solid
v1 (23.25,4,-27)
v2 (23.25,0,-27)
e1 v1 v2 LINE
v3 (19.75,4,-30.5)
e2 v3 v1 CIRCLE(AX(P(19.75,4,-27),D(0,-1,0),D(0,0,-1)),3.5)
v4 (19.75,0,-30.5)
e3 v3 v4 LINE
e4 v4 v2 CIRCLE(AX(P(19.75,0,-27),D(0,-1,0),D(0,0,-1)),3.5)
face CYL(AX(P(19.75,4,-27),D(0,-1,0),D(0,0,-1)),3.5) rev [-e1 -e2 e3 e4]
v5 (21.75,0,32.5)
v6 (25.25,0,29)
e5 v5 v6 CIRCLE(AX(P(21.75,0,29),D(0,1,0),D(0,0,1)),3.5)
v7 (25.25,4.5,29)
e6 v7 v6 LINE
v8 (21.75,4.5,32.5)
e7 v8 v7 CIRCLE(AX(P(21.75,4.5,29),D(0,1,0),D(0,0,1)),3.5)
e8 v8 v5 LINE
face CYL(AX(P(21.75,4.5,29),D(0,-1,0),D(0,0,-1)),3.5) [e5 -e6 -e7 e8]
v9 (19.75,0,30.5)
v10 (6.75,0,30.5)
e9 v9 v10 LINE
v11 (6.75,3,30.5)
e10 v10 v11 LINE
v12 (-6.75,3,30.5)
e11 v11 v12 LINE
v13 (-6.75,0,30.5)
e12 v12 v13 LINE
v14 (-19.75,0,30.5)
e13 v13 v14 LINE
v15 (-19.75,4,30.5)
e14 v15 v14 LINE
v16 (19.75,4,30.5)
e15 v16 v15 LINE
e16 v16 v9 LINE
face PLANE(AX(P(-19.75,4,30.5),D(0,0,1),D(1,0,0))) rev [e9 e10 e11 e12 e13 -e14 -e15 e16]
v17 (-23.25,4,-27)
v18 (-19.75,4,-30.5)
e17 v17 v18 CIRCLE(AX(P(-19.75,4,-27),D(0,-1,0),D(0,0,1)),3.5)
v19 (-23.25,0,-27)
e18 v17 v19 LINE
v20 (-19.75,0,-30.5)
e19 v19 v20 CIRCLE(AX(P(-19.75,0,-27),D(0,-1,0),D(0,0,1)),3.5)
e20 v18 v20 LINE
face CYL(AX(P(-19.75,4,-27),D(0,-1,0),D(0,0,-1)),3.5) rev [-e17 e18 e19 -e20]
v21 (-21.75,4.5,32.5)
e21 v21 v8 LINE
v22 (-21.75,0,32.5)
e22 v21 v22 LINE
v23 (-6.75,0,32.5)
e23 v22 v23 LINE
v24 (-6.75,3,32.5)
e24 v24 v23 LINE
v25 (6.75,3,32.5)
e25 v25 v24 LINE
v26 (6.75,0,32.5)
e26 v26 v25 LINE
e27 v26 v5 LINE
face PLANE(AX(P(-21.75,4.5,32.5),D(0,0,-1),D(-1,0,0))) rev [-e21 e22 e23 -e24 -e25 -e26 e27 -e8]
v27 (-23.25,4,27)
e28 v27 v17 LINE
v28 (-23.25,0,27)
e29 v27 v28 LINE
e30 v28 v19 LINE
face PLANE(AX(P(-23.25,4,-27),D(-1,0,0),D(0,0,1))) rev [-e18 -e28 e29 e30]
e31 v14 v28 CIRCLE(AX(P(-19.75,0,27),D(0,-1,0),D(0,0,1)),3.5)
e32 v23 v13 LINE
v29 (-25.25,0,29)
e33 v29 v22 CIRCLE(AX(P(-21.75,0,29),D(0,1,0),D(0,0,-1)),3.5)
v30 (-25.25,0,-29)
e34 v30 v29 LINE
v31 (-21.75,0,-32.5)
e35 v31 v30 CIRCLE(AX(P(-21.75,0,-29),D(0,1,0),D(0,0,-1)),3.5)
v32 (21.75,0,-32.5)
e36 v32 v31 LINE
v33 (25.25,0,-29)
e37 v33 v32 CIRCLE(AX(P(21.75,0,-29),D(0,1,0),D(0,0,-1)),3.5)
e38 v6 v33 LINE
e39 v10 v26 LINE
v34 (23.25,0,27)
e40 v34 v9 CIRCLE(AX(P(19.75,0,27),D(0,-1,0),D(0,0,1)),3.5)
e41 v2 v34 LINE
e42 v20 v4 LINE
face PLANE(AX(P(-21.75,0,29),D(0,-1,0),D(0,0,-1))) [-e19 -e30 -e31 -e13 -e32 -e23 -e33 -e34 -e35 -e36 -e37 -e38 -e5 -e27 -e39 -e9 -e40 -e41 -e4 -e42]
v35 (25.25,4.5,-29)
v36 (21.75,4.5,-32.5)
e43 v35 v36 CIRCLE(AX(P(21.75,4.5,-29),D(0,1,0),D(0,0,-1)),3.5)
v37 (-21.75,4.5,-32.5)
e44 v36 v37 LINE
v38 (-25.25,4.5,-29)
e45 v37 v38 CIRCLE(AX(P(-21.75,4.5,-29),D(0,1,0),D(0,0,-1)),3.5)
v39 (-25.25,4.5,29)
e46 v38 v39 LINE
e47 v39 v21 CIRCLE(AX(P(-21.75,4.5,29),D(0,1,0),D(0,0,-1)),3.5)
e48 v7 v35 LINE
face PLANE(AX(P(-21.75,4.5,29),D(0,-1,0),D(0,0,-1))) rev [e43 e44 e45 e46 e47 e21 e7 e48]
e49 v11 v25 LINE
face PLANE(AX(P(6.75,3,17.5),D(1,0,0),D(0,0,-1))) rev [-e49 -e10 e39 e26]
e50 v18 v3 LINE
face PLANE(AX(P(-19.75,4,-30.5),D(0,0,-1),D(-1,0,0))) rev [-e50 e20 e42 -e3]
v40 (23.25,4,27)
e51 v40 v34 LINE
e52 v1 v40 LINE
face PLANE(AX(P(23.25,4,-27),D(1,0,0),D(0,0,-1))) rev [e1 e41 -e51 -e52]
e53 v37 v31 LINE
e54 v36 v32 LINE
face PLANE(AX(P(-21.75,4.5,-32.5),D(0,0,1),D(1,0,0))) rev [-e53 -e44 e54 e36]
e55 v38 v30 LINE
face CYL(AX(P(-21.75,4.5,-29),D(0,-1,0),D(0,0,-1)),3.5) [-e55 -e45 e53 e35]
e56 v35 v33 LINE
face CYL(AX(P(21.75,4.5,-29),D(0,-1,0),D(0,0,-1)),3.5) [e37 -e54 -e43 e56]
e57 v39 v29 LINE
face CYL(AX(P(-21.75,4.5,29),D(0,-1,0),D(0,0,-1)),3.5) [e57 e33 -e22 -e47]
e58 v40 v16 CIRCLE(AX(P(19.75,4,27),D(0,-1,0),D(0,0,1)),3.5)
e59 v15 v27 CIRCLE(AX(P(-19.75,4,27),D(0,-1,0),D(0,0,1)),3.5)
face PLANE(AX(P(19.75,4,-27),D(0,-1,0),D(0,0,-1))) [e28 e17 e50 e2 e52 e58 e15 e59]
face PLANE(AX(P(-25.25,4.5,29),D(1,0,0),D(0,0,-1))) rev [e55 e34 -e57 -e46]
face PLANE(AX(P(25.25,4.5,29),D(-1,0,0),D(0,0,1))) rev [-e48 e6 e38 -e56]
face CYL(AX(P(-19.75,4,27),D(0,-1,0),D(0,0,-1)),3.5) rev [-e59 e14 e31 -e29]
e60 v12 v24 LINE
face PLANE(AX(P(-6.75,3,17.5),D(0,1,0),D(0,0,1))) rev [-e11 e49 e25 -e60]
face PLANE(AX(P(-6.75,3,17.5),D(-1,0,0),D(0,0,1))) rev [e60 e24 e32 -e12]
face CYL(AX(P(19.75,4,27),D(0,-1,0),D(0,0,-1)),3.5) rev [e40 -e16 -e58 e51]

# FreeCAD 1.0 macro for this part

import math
import FreeCAD as App
import Part
import Sketcher

V = App.Vector


def add_polygon(sketch, points):
    """Adds a closed chain of lines whose ends are joined by coincident constraints."""
    first, n = sketch.GeometryCount, len(points)
    for a, b in zip(points, points[1:] + points[:1]):
        sketch.addGeometry(Part.LineSegment(App.Vector(*a, 0), App.Vector(*b, 0)), False)
    for i in range(n):
        sketch.addConstraint(Sketcher.Constraint("Coincident", first + i, 2, first + (i + 1) % n, 1))

doc = App.newDocument("Part")
body = doc.addObject("PartDesign::Body", "Body")

# Sketch on XZ plane
sketch1 = body.newObject("Sketcher::SketchObject", "Sketch")
sketch1.AttachmentSupport = (doc.getObject("XZ_Plane"), [""])
sketch1.MapMode = "FlatFace"
sketch1.addGeometry([
    Part.LineSegment(V(-21.75, 32.5, 0), V(21.75, 32.5, 0)),  # 0
    Part.ArcOfCircle(Part.Circle(V(21.75, 29, 0), V(0, 0, 1), 3.5), math.radians(0), math.radians(90)),  # 1
    Part.LineSegment(V(25.25, 29, 0), V(25.25, -29, 0)),  # 2
    Part.ArcOfCircle(Part.Circle(V(21.75, -29, 0), V(0, 0, 1), 3.5), math.radians(-90), math.radians(0)),  # 3
    Part.LineSegment(V(21.75, -32.5, 0), V(-21.75, -32.5, 0)),  # 4
    Part.ArcOfCircle(Part.Circle(V(-21.75, -29, 0), V(0, 0, 1), 3.5), math.radians(-180), math.radians(-90)),  # 5
    Part.LineSegment(V(-25.25, -29, 0), V(-25.25, 29, 0)),  # 6
    Part.ArcOfCircle(Part.Circle(V(-21.75, 29, 0), V(0, 0, 1), 3.5), math.radians(90), math.radians(180)),  # 7
], False)
sketch1.addConstraint([
    Sketcher.Constraint("Tangent", 0, 2, 1, 2),
    Sketcher.Constraint("Tangent", 1, 1, 2, 1),
    Sketcher.Constraint("Tangent", 2, 2, 3, 2),
    Sketcher.Constraint("Tangent", 3, 1, 4, 1),
    Sketcher.Constraint("Tangent", 4, 2, 5, 2),
    Sketcher.Constraint("Tangent", 5, 1, 6, 1),
    Sketcher.Constraint("Tangent", 6, 2, 7, 2),
    Sketcher.Constraint("Tangent", 7, 1, 0, 1),
    Sketcher.Constraint("Horizontal", 0),
    Sketcher.Constraint("Vertical", 2),
    Sketcher.Constraint("Horizontal", 4),
    Sketcher.Constraint("Vertical", 6),
    Sketcher.Constraint("Equal", 1, 3),
    Sketcher.Constraint("Equal", 3, 5),
    Sketcher.Constraint("Equal", 5, 7),
    Sketcher.Constraint("Symmetric", 1, 3, 5, 3, -1, 1),
    Sketcher.Constraint("Radius", 1, 3.5),
    Sketcher.Constraint("DistanceY", 2, 2, 2, 1, 58.0),
    Sketcher.Constraint("DistanceX", 0, 1, 0, 2, 43.5),
])
pad1 = body.newObject("PartDesign::Pad", "Pad")
pad1.Profile = sketch1
pad1.Length = 4.5
pad1.Reversed = True

# Sketch on XZ plane
sketch2 = body.newObject("Sketcher::SketchObject", "Sketch001")
sketch2.AttachmentSupport = (doc.getObject("XZ_Plane"), [""])
sketch2.MapMode = "FlatFace"
sketch2.addGeometry([
    Part.LineSegment(V(-19.75, -30.5, 0), V(19.75, -30.5, 0)),  # 0
    Part.ArcOfCircle(Part.Circle(V(19.75, -27, 0), V(0, 0, 1), 3.5), math.radians(-90), math.radians(0)),  # 1
    Part.LineSegment(V(23.25, -27, 0), V(23.25, 27, 0)),  # 2
    Part.ArcOfCircle(Part.Circle(V(19.75, 27, 0), V(0, 0, 1), 3.5), math.radians(0), math.radians(90)),  # 3
    Part.LineSegment(V(19.75, 30.5, 0), V(-19.75, 30.5, 0)),  # 4
    Part.ArcOfCircle(Part.Circle(V(-19.75, 27, 0), V(0, 0, 1), 3.5), math.radians(90), math.radians(180)),  # 5
    Part.LineSegment(V(-23.25, 27, 0), V(-23.25, -27, 0)),  # 6
    Part.ArcOfCircle(Part.Circle(V(-19.75, -27, 0), V(0, 0, 1), 3.5), math.radians(-180), math.radians(-90)),  # 7
], False)
sketch2.addConstraint([
    Sketcher.Constraint("Tangent", 0, 2, 1, 1),
    Sketcher.Constraint("Tangent", 1, 2, 2, 1),
    Sketcher.Constraint("Tangent", 2, 2, 3, 1),
    Sketcher.Constraint("Tangent", 3, 2, 4, 1),
    Sketcher.Constraint("Tangent", 4, 2, 5, 1),
    Sketcher.Constraint("Tangent", 5, 2, 6, 1),
    Sketcher.Constraint("Tangent", 6, 2, 7, 1),
    Sketcher.Constraint("Tangent", 7, 2, 0, 1),
    Sketcher.Constraint("Horizontal", 0),
    Sketcher.Constraint("Vertical", 2),
    Sketcher.Constraint("Horizontal", 4),
    Sketcher.Constraint("Vertical", 6),
    Sketcher.Constraint("Equal", 1, 3),
    Sketcher.Constraint("Equal", 3, 5),
    Sketcher.Constraint("Equal", 5, 7),
    Sketcher.Constraint("Symmetric", 1, 3, 5, 3, -1, 1),
    Sketcher.Constraint("Radius", 1, 3.5),
    Sketcher.Constraint("DistanceY", 2, 1, 2, 2, 54.0),
    Sketcher.Constraint("DistanceX", 0, 1, 0, 2, 39.5),
])
pocket1 = body.newObject("PartDesign::Pocket", "Pocket")
pocket1.Profile = sketch2
pocket1.Length = 4

# Sketch on XY plane
sketch3 = body.newObject("Sketcher::SketchObject", "Sketch002")
sketch3.AttachmentSupport = (doc.getObject("XY_Plane"), [""])
sketch3.MapMode = "FlatFace"
sketch3.AttachmentOffset = App.Placement(V(0, 0, 32.5), App.Rotation())
add_polygon(sketch3, [(-6.75, 3), (-6.75, -3), (6.75, -3), (6.75, 3)])  # lines 0-3
sketch3.addConstraint([
    Sketcher.Constraint("Vertical", 0),
    Sketcher.Constraint("Horizontal", 1),
    Sketcher.Constraint("Vertical", 2),
    Sketcher.Constraint("Horizontal", 3),
    Sketcher.Constraint("Symmetric", 0, 2, 2, 2, -1, 1),
    Sketcher.Constraint("DistanceY", 0, 2, 0, 1, 6.0),
    Sketcher.Constraint("DistanceX", 1, 1, 1, 2, 13.5),
])
pocket2 = body.newObject("PartDesign::Pocket", "Pocket001")
pocket2.Profile = sketch3
pocket2.Length = 15

doc.recompute()
